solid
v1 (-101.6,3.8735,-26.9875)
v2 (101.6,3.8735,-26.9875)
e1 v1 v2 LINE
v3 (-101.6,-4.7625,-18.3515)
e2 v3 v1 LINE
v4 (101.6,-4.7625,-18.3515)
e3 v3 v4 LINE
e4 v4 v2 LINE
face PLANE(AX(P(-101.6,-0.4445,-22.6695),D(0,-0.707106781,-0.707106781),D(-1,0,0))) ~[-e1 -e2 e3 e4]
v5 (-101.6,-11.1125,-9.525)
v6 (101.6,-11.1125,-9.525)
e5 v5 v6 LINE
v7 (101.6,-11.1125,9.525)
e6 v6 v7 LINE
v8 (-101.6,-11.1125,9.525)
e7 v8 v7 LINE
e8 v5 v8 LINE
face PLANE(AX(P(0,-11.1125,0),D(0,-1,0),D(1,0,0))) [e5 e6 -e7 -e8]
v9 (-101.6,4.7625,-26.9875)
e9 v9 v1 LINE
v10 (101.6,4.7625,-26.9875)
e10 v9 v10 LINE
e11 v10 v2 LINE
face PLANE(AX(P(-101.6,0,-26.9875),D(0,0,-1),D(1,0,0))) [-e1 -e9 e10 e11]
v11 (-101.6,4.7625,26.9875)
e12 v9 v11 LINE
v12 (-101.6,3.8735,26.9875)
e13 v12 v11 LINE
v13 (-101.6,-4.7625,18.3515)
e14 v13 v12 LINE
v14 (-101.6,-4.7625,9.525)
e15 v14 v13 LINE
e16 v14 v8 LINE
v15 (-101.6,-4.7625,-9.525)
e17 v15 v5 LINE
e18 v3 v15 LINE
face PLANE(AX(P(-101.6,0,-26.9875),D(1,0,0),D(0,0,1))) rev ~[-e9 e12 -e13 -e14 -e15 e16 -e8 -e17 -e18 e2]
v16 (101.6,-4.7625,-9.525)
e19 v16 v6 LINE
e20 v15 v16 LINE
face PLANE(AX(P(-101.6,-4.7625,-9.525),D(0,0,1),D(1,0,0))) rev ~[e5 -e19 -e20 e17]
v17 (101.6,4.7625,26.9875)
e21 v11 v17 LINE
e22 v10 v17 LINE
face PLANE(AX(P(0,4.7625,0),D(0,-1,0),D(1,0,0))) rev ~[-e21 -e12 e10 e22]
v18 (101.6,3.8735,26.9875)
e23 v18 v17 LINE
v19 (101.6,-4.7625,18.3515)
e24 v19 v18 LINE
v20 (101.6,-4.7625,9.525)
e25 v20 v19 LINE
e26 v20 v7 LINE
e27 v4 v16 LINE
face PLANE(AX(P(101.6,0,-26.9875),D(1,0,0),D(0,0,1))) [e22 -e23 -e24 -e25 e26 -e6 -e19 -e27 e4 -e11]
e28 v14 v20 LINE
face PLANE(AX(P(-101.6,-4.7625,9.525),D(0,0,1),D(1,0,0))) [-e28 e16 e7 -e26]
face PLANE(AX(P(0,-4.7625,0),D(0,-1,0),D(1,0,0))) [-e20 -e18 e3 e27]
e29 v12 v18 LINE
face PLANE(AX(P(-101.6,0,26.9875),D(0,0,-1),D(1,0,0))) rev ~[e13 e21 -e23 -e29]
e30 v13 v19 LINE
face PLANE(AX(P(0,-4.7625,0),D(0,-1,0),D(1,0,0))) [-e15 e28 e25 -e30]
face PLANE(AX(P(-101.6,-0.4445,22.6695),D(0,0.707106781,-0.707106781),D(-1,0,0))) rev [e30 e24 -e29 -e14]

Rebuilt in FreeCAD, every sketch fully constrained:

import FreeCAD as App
import Part
import Sketcher
from FreeCAD import Vector
Q = App.Units.Quantity


def edges_at(feature, points):
    """Names of the edges that pass closest to the given points."""
    edges = feature.Shape.Edges
    near = lambda p: min(range(len(edges)), key=lambda i: edges[i].distToShape(Part.Vertex(*p))[0])
    return sorted({f"Edge{near(p) + 1}" for p in points})

doc = App.newDocument("Part")
body = doc.addObject("PartDesign::Body", "Body")

# Sketch on XZ plane
sketch1 = body.newObject("Sketcher::SketchObject", "Sketch")
sketch1.AttachmentSupport = (doc.getObject("XZ_Plane"), [""])
sketch1.MapMode = "FlatFace"
sketch1.addGeometry(Part.LineSegment(Vector(-102, 27, 0), Vector(-102, -27, 0)), False)
sketch1.addGeometry(Part.LineSegment(Vector(-102, -27, 0), Vector(102, -27, 0)), False)
sketch1.addGeometry(Part.LineSegment(Vector(102, -27, 0), Vector(102, 27, 0)), False)
sketch1.addGeometry(Part.LineSegment(Vector(102, 27, 0), Vector(-102, 27, 0)), False)
sketch1.addConstraint(Sketcher.Constraint("Coincident", 0, 2, 1, 1))
sketch1.addConstraint(Sketcher.Constraint("Coincident", 1, 2, 2, 1))
sketch1.addConstraint(Sketcher.Constraint("Coincident", 2, 2, 3, 1))
sketch1.addConstraint(Sketcher.Constraint("Coincident", 3, 2, 0, 1))
sketch1.addConstraint(Sketcher.Constraint("Vertical", 0))
sketch1.addConstraint(Sketcher.Constraint("Horizontal", 1))
sketch1.addConstraint(Sketcher.Constraint("Vertical", 2))
sketch1.addConstraint(Sketcher.Constraint("Horizontal", 3))
sketch1.addConstraint(Sketcher.Constraint("Symmetric", 0, 2, 2, 2, -1, 1))
sketch1.addConstraint(Sketcher.Constraint("DistanceX", 1, 1, 1, 2, Q("8 in")))
sketch1.addConstraint(Sketcher.Constraint("DistanceY", 0, 2, 0, 1, Q("2.125 in")))
pad1 = body.newObject("PartDesign::Pad", "Pad")
pad1.Profile = sketch1
pad1.Length = Q("0.375 in")
pad1.Midplane = True
doc.recompute()

chamfer = body.newObject("PartDesign::Chamfer", "Chamfer")
chamfer.Base = (pad1, edges_at(pad1, [(0, -4.763, 26.988), (0, -4.763, -26.988)]))
chamfer.Size = Q("0.34 in")

# Sketch on XZ plane
sketch2 = body.newObject("Sketcher::SketchObject", "Sketch001")
sketch2.AttachmentSupport = (doc.getObject("XZ_Plane"), [""])
sketch2.MapMode = "FlatFace"
sketch2.AttachmentOffset = App.Placement(Vector(0, 0, 0.1875 * 25.4), App.Rotation())
sketch2.addGeometry(Part.LineSegment(Vector(-102, 10, 0), Vector(-102, -10, 0)), False)
sketch2.addGeometry(Part.LineSegment(Vector(-102, -10, 0), Vector(102, -10, 0)), False)
sketch2.addGeometry(Part.LineSegment(Vector(102, -10, 0), Vector(102, 10, 0)), False)
sketch2.addGeometry(Part.LineSegment(Vector(102, 10, 0), Vector(-102, 10, 0)), False)
sketch2.addConstraint(Sketcher.Constraint("Coincident", 0, 2, 1, 1))
sketch2.addConstraint(Sketcher.Constraint("Coincident", 1, 2, 2, 1))
sketch2.addConstraint(Sketcher.Constraint("Coincident", 2, 2, 3, 1))
sketch2.addConstraint(Sketcher.Constraint("Coincident", 3, 2, 0, 1))
sketch2.addConstraint(Sketcher.Constraint("Vertical", 0))
sketch2.addConstraint(Sketcher.Constraint("Horizontal", 1))
sketch2.addConstraint(Sketcher.Constraint("Vertical", 2))
sketch2.addConstraint(Sketcher.Constraint("Horizontal", 3))
sketch2.addConstraint(Sketcher.Constraint("Symmetric", 0, 2, 2, 2, -1, 1))
sketch2.addConstraint(Sketcher.Constraint("DistanceX", 1, 1, 1, 2, Q("8 in")))
sketch2.addConstraint(Sketcher.Constraint("DistanceY", 0, 2, 0, 1, Q("0.75 in")))
pad2 = body.newObject("PartDesign::Pad", "Pad001")
pad2.Profile = sketch2
pad2.Length = Q("0.25 in")

doc.recompute()
